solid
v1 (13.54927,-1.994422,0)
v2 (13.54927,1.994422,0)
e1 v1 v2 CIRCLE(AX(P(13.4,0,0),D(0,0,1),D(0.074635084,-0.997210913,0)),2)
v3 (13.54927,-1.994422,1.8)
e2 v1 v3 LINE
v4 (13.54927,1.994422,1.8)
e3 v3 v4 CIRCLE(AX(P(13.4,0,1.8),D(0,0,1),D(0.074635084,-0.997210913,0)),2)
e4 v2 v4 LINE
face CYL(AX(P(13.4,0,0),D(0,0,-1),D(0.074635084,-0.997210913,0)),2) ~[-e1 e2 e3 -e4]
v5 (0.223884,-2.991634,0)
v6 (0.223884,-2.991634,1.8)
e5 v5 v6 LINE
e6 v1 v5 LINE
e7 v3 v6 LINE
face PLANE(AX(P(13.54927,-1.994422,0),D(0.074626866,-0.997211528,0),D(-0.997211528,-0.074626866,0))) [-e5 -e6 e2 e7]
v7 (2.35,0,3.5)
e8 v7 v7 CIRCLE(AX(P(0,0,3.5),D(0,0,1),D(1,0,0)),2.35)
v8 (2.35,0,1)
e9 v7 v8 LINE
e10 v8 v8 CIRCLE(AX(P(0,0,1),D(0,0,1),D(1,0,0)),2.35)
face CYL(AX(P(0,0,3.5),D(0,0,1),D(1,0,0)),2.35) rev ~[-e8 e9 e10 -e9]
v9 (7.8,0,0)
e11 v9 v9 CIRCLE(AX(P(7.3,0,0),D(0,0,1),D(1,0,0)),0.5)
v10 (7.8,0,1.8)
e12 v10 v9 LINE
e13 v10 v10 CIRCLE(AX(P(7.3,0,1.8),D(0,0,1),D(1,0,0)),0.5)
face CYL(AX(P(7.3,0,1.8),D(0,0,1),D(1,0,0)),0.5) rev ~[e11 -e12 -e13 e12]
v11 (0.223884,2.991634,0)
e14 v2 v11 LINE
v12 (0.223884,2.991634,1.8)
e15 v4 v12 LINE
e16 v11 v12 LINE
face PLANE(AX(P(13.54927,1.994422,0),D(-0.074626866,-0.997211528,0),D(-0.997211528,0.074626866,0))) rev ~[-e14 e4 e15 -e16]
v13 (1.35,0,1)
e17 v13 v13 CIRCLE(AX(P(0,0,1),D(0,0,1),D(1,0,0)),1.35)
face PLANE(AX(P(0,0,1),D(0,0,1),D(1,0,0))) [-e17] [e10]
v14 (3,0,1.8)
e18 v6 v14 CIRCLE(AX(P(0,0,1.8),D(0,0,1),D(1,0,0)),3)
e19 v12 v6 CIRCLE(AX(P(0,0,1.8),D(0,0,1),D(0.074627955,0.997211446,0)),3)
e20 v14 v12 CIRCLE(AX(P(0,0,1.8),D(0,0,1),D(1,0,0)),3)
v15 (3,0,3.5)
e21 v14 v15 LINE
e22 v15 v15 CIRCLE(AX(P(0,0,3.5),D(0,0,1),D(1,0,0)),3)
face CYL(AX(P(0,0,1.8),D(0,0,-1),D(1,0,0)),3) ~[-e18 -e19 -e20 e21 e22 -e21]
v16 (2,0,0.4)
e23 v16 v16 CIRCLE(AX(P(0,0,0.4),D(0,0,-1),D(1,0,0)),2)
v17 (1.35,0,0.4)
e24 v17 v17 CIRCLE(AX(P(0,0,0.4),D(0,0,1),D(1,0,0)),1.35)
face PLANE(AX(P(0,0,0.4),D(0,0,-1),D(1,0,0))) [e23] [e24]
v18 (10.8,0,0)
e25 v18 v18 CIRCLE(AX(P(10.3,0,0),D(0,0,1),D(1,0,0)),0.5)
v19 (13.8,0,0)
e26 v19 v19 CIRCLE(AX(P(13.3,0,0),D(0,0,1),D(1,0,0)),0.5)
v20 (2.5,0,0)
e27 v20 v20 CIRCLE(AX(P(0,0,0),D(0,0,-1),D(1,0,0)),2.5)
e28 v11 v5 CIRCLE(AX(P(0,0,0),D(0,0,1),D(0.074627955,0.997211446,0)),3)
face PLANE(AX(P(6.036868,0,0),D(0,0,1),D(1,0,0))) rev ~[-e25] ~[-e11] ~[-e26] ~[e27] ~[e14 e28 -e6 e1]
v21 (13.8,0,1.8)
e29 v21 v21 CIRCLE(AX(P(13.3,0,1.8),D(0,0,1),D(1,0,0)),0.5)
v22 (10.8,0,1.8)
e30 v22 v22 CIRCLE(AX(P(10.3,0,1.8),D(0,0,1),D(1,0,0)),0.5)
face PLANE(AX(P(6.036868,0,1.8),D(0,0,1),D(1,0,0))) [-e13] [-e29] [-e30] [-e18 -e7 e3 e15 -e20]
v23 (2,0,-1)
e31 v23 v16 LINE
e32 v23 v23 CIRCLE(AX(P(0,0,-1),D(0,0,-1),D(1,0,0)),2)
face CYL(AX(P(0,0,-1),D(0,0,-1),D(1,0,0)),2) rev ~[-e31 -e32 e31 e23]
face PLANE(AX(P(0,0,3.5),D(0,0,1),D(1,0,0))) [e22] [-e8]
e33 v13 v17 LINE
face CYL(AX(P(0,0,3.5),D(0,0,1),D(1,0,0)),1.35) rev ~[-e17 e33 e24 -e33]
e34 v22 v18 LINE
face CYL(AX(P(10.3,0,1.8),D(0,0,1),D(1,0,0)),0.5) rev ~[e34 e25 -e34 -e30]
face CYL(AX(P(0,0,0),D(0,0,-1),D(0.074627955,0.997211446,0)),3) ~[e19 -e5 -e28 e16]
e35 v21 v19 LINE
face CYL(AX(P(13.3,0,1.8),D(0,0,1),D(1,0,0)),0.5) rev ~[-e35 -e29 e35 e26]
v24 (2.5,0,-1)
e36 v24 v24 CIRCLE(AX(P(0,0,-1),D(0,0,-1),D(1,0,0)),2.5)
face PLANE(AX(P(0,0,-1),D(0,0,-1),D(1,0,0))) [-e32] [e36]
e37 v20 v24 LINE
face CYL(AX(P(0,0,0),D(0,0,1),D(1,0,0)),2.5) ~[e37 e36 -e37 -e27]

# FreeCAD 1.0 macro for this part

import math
import FreeCAD as App
import Part
import Sketcher
from FreeCAD import Vector

doc = App.newDocument("Part")
params = doc.addObject("Spreadsheet::Sheet", "Params")
for row, (alias, value) in enumerate([
    ("sketch1_radius", "3 mm"),
    ("sketch1_radius2", "2 mm"),
    ("pad1_length", "1.8 mm"),
    ("sketch2_diameter", "6 mm"),
    ("pad2_length", "1.7 mm"),
    ("sketch3_diameter", "5 mm"),
    ("pad3_length", "1 mm"),
    ("sketch4_diameter", "4 mm"),
    ("pocket1_length", "1.4 mm"),
    ("sketch5_diameter", "4.7 mm"),
    ("pocket2_length", "2.5 mm"),
    ("sketch6_diameter", "2.7 mm"),
    ("sketch7_diameter", "1 mm"),
], start=1):
    params.set(f"A{row}", alias)
    params.set(f"B{row}", "=" + value)
    params.setAlias(f"B{row}", alias)

body = doc.addObject("PartDesign::Body", "Body")

sketch1 = doc.addObject("Sketcher::SketchObject", "Sketch")
body.addObject(sketch1)
sketch1.AttachmentSupport = (doc.XY_Plane, [""])
sketch1.MapMode = "FlatFace"
sketch1.addGeometry([
    Part.ArcOfCircle(Part.Circle(Vector(0, 0, 0), Vector(0, 0, 1), 3), math.radians(86), math.radians(274)),
    Part.LineSegment(Vector(0.2, -3, 0), Vector(13.5, -2, 0)),
    Part.ArcOfCircle(Part.Circle(Vector(13.4, 0, 0), Vector(0, 0, 1), 2), math.radians(-86), math.radians(86)),
    Part.LineSegment(Vector(13.5, 2, 0), Vector(0.2, 3, 0)),
], False)
sketch1.addConstraint([
    Sketcher.Constraint("Tangent", 0, 2, 1, 1),
    Sketcher.Constraint("Coincident", 1, 2, 2, 1),
    Sketcher.Constraint("Coincident", 2, 2, 3, 1),
    Sketcher.Constraint("Tangent", 3, 2, 0, 1),
    Sketcher.Constraint("Coincident", 0, 3, -1, 1),
    Sketcher.Constraint("Symmetric", 1, 2, 2, 2, -1),
    Sketcher.Constraint("Radius", 0, 3.0),
    Sketcher.Constraint("Radius", 2, 2.0),
    Sketcher.Constraint("DistanceX", -1, 1, 2, 3, 13.4),
    Sketcher.Constraint("DistanceX", -1, 1, 1, 2, 13.54927),
])
sketch1.setExpression("Constraints[6]", "Params.sketch1_radius")
sketch1.setExpression("Constraints[7]", "Params.sketch1_radius2")
pad1 = doc.addObject("PartDesign::Pad", "Pad")
body.addObject(pad1)
pad1.Profile = sketch1
pad1.setExpression("Length", "Params.pad1_length")

sketch2 = doc.addObject("Sketcher::SketchObject", "Sketch001")
body.addObject(sketch2)
sketch2.AttachmentSupport = (doc.XY_Plane, [""])
sketch2.MapMode = "FlatFace"
sketch2.AttachmentOffset = App.Placement(Vector(0, 0, 1.8), App.Rotation())
sketch2.addGeometry(Part.Circle(Vector(0, 0, 0), Vector(0, 0, 1), 3), False)
sketch2.addConstraint([
    Sketcher.Constraint("Coincident", 0, 3, -1, 1),
    Sketcher.Constraint("Diameter", 0, 6.0),
])
sketch2.setExpression("Constraints[1]", "Params.sketch2_diameter")
pad2 = doc.addObject("PartDesign::Pad", "Pad001")
body.addObject(pad2)
pad2.Profile = sketch2
pad2.setExpression("Length", "Params.pad2_length")

sketch3 = doc.addObject("Sketcher::SketchObject", "Sketch002")
body.addObject(sketch3)
sketch3.AttachmentSupport = (doc.XY_Plane, [""])
sketch3.MapMode = "FlatFace"
sketch3.addGeometry(Part.Circle(Vector(0, 0, 0), Vector(0, 0, 1), 2.5), False)
sketch3.addConstraint([
    Sketcher.Constraint("Coincident", 0, 3, -1, 1),
    Sketcher.Constraint("Diameter", 0, 5.0),
])
sketch3.setExpression("Constraints[1]", "Params.sketch3_diameter")
pad3 = doc.addObject("PartDesign::Pad", "Pad002")
body.addObject(pad3)
pad3.Profile = sketch3
pad3.setExpression("Length", "Params.pad3_length")
pad3.Reversed = True

sketch4 = doc.addObject("Sketcher::SketchObject", "Sketch003")
body.addObject(sketch4)
sketch4.AttachmentSupport = (doc.XY_Plane, [""])
sketch4.MapMode = "FlatFace"
sketch4.AttachmentOffset = App.Placement(Vector(0, 0, -1), App.Rotation())
sketch4.addGeometry(Part.Circle(Vector(0, 0, 0), Vector(0, 0, 1), 2), False)
sketch4.addConstraint([
    Sketcher.Constraint("Coincident", 0, 3, -1, 1),
    Sketcher.Constraint("Diameter", 0, 4.0),
])
sketch4.setExpression("Constraints[1]", "Params.sketch4_diameter")
pocket1 = doc.addObject("PartDesign::Pocket", "Pocket")
body.addObject(pocket1)
pocket1.Profile = sketch4
pocket1.setExpression("Length", "Params.pocket1_length")
pocket1.Reversed = True

sketch5 = doc.addObject("Sketcher::SketchObject", "Sketch004")
body.addObject(sketch5)
sketch5.AttachmentSupport = (doc.XY_Plane, [""])
sketch5.MapMode = "FlatFace"
sketch5.AttachmentOffset = App.Placement(Vector(0, 0, 3.5), App.Rotation())
sketch5.addGeometry(Part.Circle(Vector(0, 0, 0), Vector(0, 0, 1), 2.4), False)
sketch5.addConstraint([
    Sketcher.Constraint("Coincident", 0, 3, -1, 1),
    Sketcher.Constraint("Diameter", 0, 4.7),
])
sketch5.setExpression("Constraints[1]", "Params.sketch5_diameter")
pocket2 = doc.addObject("PartDesign::Pocket", "Pocket001")
body.addObject(pocket2)
pocket2.Profile = sketch5
pocket2.setExpression("Length", "Params.pocket2_length")

sketch6 = doc.addObject("Sketcher::SketchObject", "Sketch005")
body.addObject(sketch6)
sketch6.AttachmentSupport = (doc.XY_Plane, [""])
sketch6.MapMode = "FlatFace"
sketch6.AttachmentOffset = App.Placement(Vector(0, 0, 3.5), App.Rotation())
sketch6.addGeometry(Part.Circle(Vector(0, 0, 0), Vector(0, 0, 1), 1.4), False)
sketch6.addConstraint([
    Sketcher.Constraint("Coincident", 0, 3, -1, 1),
    Sketcher.Constraint("Diameter", 0, 2.7),
])
sketch6.setExpression("Constraints[1]", "Params.sketch6_diameter")
pocket3 = doc.addObject("PartDesign::Pocket", "Pocket002")
body.addObject(pocket3)
pocket3.Profile = sketch6
pocket3.Type = "ThroughAll"

sketch7 = doc.addObject("Sketcher::SketchObject", "Sketch006")
body.addObject(sketch7)
sketch7.AttachmentSupport = (doc.XY_Plane, [""])
sketch7.MapMode = "FlatFace"
sketch7.AttachmentOffset = App.Placement(Vector(0, 0, 1.8), App.Rotation())
sketch7.addGeometry([
    Part.Circle(Vector(7.3, 0, 0), Vector(0, 0, 1), 0.5),
    Part.Circle(Vector(10.3, 0, 0), Vector(0, 0, 1), 0.5),
    Part.Circle(Vector(13.3, 0, 0), Vector(0, 0, 1), 0.5),
], False)
sketch7.addConstraint([
    Sketcher.Constraint("Equal", 0, 1),
    Sketcher.Constraint("Equal", 1, 2),
    Sketcher.Constraint("PointOnObject", 0, 3, -1),
    Sketcher.Constraint("PointOnObject", 1, 3, -1),
    Sketcher.Constraint("PointOnObject", 2, 3, -1),
    Sketcher.Constraint("Diameter", 0, 1.0),
    Sketcher.Constraint("DistanceX", 0, 3, 1, 3, 3.0),
    Sketcher.Constraint("DistanceX", 1, 3, 2, 3, 3.0),
    Sketcher.Constraint("DistanceX", -1, 1, 0, 3, 7.3),
])
sketch7.setExpression("Constraints[5]", "Params.sketch7_diameter")
pocket4 = doc.addObject("PartDesign::Pocket", "Pocket003")
body.addObject(pocket4)
pocket4.Profile = sketch7
pocket4.Type = "ThroughAll"

doc.recompute()
